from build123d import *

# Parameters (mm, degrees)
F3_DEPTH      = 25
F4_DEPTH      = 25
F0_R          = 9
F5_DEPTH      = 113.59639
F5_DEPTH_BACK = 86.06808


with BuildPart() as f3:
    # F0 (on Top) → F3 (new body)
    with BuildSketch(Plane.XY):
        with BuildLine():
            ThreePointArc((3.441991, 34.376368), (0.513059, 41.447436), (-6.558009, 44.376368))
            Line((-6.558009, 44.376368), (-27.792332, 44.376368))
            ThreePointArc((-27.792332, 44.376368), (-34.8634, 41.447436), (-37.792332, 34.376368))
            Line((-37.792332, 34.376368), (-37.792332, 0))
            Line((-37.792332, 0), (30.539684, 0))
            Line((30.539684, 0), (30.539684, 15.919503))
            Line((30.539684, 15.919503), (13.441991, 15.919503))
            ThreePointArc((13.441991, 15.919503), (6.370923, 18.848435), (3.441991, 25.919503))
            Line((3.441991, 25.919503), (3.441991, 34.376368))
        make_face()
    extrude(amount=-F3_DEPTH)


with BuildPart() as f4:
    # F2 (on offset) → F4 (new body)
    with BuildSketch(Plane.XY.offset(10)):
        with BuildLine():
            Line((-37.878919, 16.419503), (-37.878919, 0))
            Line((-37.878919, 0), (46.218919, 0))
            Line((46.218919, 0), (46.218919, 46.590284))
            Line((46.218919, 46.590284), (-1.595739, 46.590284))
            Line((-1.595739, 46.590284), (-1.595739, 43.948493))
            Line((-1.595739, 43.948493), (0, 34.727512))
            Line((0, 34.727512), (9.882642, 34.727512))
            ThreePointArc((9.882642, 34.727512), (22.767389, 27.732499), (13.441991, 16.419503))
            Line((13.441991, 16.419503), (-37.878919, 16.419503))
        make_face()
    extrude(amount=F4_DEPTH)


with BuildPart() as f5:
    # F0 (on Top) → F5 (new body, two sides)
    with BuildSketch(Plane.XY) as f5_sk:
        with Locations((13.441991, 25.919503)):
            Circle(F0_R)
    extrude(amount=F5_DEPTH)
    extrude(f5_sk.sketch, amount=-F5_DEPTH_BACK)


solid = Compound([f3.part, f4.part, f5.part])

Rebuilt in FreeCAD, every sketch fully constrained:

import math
import FreeCAD as App
import Part
import Sketcher
from FreeCAD import Vector
Q = App.Units.Quantity

doc = App.newDocument("Part")
body = doc.addObject("PartDesign::Body", "Body")

# Sketch on XY plane
sketch1 = doc.addObject("Sketcher::SketchObject", "Sketch")
body.addObject(sketch1)
sketch1.AttachmentSupport = (doc.XY_Plane, [""])
sketch1.MapMode = "FlatFace"
sketch1.addGeometry(Part.ArcOfCircle(Part.Circle(Vector(-6.558008, 34.376369, 0), Vector(0, 0, 1), 9.999999), math.radians(-0.000004), math.radians(90.000004)), False)
sketch1.addGeometry(Part.LineSegment(Vector(-6.558009, 44.376368, 0), Vector(-27.792332, 44.376368, 0)), False)
sketch1.addGeometry(Part.ArcOfCircle(Part.Circle(Vector(-27.792333, 34.376369, 0), Vector(0, 0, 1), 9.999999), math.radians(89.999996), math.radians(180.000004)), False)
sketch1.addGeometry(Part.LineSegment(Vector(-37.792332, 34.376368, 0), Vector(-37.792332, 0, 0)), False)
sketch1.addGeometry(Part.LineSegment(Vector(-37.792332, 0, 0), Vector(30.539684, 0, 0)), False)
sketch1.addGeometry(Part.LineSegment(Vector(30.539684, 0, 0), Vector(30.539684, 15.919503, 0)), False)
sketch1.addGeometry(Part.LineSegment(Vector(30.539684, 15.919503, 0), Vector(13.441991, 15.919503, 0)), False)
sketch1.addGeometry(Part.ArcOfCircle(Part.Circle(Vector(13.44199, 25.919502, 0), Vector(0, 0, 1), 9.999999), math.radians(179.999996), math.radians(270.000004)), False)
sketch1.addGeometry(Part.LineSegment(Vector(3.441991, 25.919503, 0), Vector(3.441991, 34.376368, 0)), False)
sketch1.addConstraint(Sketcher.Constraint("Tangent", 0, 2, 1, 1))
sketch1.addConstraint(Sketcher.Constraint("Tangent", 1, 2, 2, 1))
sketch1.addConstraint(Sketcher.Constraint("Tangent", 2, 2, 3, 1))
sketch1.addConstraint(Sketcher.Constraint("Coincident", 3, 2, 4, 1))
sketch1.addConstraint(Sketcher.Constraint("Coincident", 4, 2, 5, 1))
sketch1.addConstraint(Sketcher.Constraint("Coincident", 5, 2, 6, 1))
sketch1.addConstraint(Sketcher.Constraint("Tangent", 6, 2, 7, 2))
sketch1.addConstraint(Sketcher.Constraint("Tangent", 7, 1, 8, 1))
sketch1.addConstraint(Sketcher.Constraint("Tangent", 8, 2, 0, 1))
sketch1.addConstraint(Sketcher.Constraint("Horizontal", 1))
sketch1.addConstraint(Sketcher.Constraint("Vertical", 3))
sketch1.addConstraint(Sketcher.Constraint("Horizontal", 4))
sketch1.addConstraint(Sketcher.Constraint("Vertical", 5))
sketch1.addConstraint(Sketcher.Constraint("Horizontal", 6))
sketch1.addConstraint(Sketcher.Constraint("Vertical", 8))
sketch1.addConstraint(Sketcher.Constraint("Equal", 0, 2))
sketch1.addConstraint(Sketcher.Constraint("Equal", 2, 7))
sketch1.addConstraint(Sketcher.Constraint("PointOnObject", 3, 2, -1))
sketch1.addConstraint(Sketcher.Constraint("Radius", 0, Q("9.999999 mm")))
sketch1.addConstraint(Sketcher.Constraint("DistanceX", 1, 2, 1, 1, Q("21.234323 mm")))
sketch1.addConstraint(Sketcher.Constraint("DistanceX", 4, 1, 4, 2, Q("68.332016 mm")))
sketch1.addConstraint(Sketcher.Constraint("DistanceY", 3, 2, 3, 1, Q("34.376368 mm")))
sketch1.addConstraint(Sketcher.Constraint("DistanceY", 5, 1, 5, 2, Q("15.919503 mm")))
sketch1.addConstraint(Sketcher.Constraint("DistanceX", 0, 3, -1, 1, Q("6.558008 mm")))
pad1 = doc.addObject("PartDesign::Pad", "Pad")
body.addObject(pad1)
pad1.Profile = sketch1
pad1.Length = 25
pad1.Reversed = True
body2 = doc.addObject("PartDesign::Body", "Body001")

# Sketch on XY plane
sketch2 = doc.addObject("Sketcher::SketchObject", "Sketch001")
body2.addObject(sketch2)
sketch2.AttachmentSupport = (doc.getObject("XY_Plane001"), [""])
sketch2.MapMode = "FlatFace"
sketch2.AttachmentOffset = App.Placement(Vector(0, 0, 10), App.Rotation())
sketch2.addGeometry(Part.LineSegment(Vector(-37.878919, 16.419503, 0), Vector(-37.878919, 0, 0)), False)
sketch2.addGeometry(Part.LineSegment(Vector(-37.878919, 0, 0), Vector(46.218919, 0, 0)), False)
sketch2.addGeometry(Part.LineSegment(Vector(46.218919, 0, 0), Vector(46.218919, 46.590284, 0)), False)
sketch2.addGeometry(Part.LineSegment(Vector(46.218919, 46.590284, 0), Vector(-1.595739, 46.590284, 0)), False)
sketch2.addGeometry(Part.LineSegment(Vector(-1.595739, 46.590284, 0), Vector(-1.595739, 43.948493, 0)), False)
sketch2.addGeometry(Part.LineSegment(Vector(-1.595739, 43.948493, 0), Vector(0, 34.727512, 0)), False)
sketch2.addGeometry(Part.LineSegment(Vector(0, 34.727512, 0), Vector(9.882642, 34.727512, 0)), False)
sketch2.addGeometry(Part.ArcOfCircle(Part.Circle(Vector(13.441991, 25.919503, 0), Vector(0, 0, 1), 9.5), math.radians(-90.000003), math.radians(112.003818)), False)
sketch2.addGeometry(Part.LineSegment(Vector(13.441991, 16.419503, 0), Vector(-37.878919, 16.419503, 0)), False)
sketch2.addConstraint(Sketcher.Constraint("Coincident", 0, 2, 1, 1))
sketch2.addConstraint(Sketcher.Constraint("Coincident", 1, 2, 2, 1))
sketch2.addConstraint(Sketcher.Constraint("Coincident", 2, 2, 3, 1))
sketch2.addConstraint(Sketcher.Constraint("Coincident", 3, 2, 4, 1))
sketch2.addConstraint(Sketcher.Constraint("Coincident", 4, 2, 5, 1))
sketch2.addConstraint(Sketcher.Constraint("Coincident", 5, 2, 6, 1))
sketch2.addConstraint(Sketcher.Constraint("Coincident", 6, 2, 7, 2))
sketch2.addConstraint(Sketcher.Constraint("Tangent", 7, 1, 8, 1))
sketch2.addConstraint(Sketcher.Constraint("Coincident", 8, 2, 0, 1))
sketch2.addConstraint(Sketcher.Constraint("Vertical", 0))
sketch2.addConstraint(Sketcher.Constraint("Horizontal", 1))
sketch2.addConstraint(Sketcher.Constraint("Vertical", 2))
sketch2.addConstraint(Sketcher.Constraint("Horizontal", 3))
sketch2.addConstraint(Sketcher.Constraint("Vertical", 4))
sketch2.addConstraint(Sketcher.Constraint("Horizontal", 6))
sketch2.addConstraint(Sketcher.Constraint("Horizontal", 8))
sketch2.addConstraint(Sketcher.Constraint("PointOnObject", 0, 2, -1))
sketch2.addConstraint(Sketcher.Constraint("PointOnObject", 5, 2, -2))
sketch2.addConstraint(Sketcher.Constraint("Radius", 7, Q("9.5 mm")))
sketch2.addConstraint(Sketcher.Constraint("DistanceX", 8, 2, 8, 1, Q("51.32091 mm")))
sketch2.addConstraint(Sketcher.Constraint("DistanceY", 4, 2, 4, 1, Q("2.641791 mm")))
sketch2.addConstraint(Sketcher.Constraint("DistanceX", 1, 1, 1, 2, Q("84.097838 mm")))
sketch2.addConstraint(Sketcher.Constraint("DistanceX", 3, 2, 3, 1, Q("47.814658 mm")))
sketch2.addConstraint(Sketcher.Constraint("DistanceX", 6, 1, 6, 2, Q("9.882642 mm")))
sketch2.addConstraint(Sketcher.Constraint("DistanceY", 0, 2, 0, 1, Q("16.419503 mm")))
sketch2.addConstraint(Sketcher.Constraint("DistanceY", 2, 1, 2, 2, Q("46.590284 mm")))
sketch2.addConstraint(Sketcher.Constraint("DistanceX", -1, 1, 7, 3, Q("13.441991 mm")))
pad2 = doc.addObject("PartDesign::Pad", "Pad001")
body2.addObject(pad2)
pad2.Profile = sketch2
pad2.Length = 25
body3 = doc.addObject("PartDesign::Body", "Body002")

# Sketch on XY plane
sketch3 = doc.addObject("Sketcher::SketchObject", "Sketch002")
body3.addObject(sketch3)
sketch3.AttachmentSupport = (doc.getObject("XY_Plane002"), [""])
sketch3.MapMode = "FlatFace"
sketch3.addGeometry(Part.Circle(Vector(13.441991, 25.919503, 0), Vector(0, 0, 1), 9), False)
sketch3.addConstraint(Sketcher.Constraint("Diameter", 0, Q("18 mm")))
sketch3.addConstraint(Sketcher.Constraint("DistanceX", -1, 1, 0, 3, Q("13.441991 mm")))
sketch3.addConstraint(Sketcher.Constraint("DistanceY", -1, 1, 0, 3, Q("25.919503 mm")))
pad3 = doc.addObject("PartDesign::Pad", "Pad002")
body3.addObject(pad3)
pad3.Profile = sketch3
pad3.Type = "TwoLengths"
pad3.Length = 113.59639
pad3.Length2 = 86.06808

doc.recompute()
